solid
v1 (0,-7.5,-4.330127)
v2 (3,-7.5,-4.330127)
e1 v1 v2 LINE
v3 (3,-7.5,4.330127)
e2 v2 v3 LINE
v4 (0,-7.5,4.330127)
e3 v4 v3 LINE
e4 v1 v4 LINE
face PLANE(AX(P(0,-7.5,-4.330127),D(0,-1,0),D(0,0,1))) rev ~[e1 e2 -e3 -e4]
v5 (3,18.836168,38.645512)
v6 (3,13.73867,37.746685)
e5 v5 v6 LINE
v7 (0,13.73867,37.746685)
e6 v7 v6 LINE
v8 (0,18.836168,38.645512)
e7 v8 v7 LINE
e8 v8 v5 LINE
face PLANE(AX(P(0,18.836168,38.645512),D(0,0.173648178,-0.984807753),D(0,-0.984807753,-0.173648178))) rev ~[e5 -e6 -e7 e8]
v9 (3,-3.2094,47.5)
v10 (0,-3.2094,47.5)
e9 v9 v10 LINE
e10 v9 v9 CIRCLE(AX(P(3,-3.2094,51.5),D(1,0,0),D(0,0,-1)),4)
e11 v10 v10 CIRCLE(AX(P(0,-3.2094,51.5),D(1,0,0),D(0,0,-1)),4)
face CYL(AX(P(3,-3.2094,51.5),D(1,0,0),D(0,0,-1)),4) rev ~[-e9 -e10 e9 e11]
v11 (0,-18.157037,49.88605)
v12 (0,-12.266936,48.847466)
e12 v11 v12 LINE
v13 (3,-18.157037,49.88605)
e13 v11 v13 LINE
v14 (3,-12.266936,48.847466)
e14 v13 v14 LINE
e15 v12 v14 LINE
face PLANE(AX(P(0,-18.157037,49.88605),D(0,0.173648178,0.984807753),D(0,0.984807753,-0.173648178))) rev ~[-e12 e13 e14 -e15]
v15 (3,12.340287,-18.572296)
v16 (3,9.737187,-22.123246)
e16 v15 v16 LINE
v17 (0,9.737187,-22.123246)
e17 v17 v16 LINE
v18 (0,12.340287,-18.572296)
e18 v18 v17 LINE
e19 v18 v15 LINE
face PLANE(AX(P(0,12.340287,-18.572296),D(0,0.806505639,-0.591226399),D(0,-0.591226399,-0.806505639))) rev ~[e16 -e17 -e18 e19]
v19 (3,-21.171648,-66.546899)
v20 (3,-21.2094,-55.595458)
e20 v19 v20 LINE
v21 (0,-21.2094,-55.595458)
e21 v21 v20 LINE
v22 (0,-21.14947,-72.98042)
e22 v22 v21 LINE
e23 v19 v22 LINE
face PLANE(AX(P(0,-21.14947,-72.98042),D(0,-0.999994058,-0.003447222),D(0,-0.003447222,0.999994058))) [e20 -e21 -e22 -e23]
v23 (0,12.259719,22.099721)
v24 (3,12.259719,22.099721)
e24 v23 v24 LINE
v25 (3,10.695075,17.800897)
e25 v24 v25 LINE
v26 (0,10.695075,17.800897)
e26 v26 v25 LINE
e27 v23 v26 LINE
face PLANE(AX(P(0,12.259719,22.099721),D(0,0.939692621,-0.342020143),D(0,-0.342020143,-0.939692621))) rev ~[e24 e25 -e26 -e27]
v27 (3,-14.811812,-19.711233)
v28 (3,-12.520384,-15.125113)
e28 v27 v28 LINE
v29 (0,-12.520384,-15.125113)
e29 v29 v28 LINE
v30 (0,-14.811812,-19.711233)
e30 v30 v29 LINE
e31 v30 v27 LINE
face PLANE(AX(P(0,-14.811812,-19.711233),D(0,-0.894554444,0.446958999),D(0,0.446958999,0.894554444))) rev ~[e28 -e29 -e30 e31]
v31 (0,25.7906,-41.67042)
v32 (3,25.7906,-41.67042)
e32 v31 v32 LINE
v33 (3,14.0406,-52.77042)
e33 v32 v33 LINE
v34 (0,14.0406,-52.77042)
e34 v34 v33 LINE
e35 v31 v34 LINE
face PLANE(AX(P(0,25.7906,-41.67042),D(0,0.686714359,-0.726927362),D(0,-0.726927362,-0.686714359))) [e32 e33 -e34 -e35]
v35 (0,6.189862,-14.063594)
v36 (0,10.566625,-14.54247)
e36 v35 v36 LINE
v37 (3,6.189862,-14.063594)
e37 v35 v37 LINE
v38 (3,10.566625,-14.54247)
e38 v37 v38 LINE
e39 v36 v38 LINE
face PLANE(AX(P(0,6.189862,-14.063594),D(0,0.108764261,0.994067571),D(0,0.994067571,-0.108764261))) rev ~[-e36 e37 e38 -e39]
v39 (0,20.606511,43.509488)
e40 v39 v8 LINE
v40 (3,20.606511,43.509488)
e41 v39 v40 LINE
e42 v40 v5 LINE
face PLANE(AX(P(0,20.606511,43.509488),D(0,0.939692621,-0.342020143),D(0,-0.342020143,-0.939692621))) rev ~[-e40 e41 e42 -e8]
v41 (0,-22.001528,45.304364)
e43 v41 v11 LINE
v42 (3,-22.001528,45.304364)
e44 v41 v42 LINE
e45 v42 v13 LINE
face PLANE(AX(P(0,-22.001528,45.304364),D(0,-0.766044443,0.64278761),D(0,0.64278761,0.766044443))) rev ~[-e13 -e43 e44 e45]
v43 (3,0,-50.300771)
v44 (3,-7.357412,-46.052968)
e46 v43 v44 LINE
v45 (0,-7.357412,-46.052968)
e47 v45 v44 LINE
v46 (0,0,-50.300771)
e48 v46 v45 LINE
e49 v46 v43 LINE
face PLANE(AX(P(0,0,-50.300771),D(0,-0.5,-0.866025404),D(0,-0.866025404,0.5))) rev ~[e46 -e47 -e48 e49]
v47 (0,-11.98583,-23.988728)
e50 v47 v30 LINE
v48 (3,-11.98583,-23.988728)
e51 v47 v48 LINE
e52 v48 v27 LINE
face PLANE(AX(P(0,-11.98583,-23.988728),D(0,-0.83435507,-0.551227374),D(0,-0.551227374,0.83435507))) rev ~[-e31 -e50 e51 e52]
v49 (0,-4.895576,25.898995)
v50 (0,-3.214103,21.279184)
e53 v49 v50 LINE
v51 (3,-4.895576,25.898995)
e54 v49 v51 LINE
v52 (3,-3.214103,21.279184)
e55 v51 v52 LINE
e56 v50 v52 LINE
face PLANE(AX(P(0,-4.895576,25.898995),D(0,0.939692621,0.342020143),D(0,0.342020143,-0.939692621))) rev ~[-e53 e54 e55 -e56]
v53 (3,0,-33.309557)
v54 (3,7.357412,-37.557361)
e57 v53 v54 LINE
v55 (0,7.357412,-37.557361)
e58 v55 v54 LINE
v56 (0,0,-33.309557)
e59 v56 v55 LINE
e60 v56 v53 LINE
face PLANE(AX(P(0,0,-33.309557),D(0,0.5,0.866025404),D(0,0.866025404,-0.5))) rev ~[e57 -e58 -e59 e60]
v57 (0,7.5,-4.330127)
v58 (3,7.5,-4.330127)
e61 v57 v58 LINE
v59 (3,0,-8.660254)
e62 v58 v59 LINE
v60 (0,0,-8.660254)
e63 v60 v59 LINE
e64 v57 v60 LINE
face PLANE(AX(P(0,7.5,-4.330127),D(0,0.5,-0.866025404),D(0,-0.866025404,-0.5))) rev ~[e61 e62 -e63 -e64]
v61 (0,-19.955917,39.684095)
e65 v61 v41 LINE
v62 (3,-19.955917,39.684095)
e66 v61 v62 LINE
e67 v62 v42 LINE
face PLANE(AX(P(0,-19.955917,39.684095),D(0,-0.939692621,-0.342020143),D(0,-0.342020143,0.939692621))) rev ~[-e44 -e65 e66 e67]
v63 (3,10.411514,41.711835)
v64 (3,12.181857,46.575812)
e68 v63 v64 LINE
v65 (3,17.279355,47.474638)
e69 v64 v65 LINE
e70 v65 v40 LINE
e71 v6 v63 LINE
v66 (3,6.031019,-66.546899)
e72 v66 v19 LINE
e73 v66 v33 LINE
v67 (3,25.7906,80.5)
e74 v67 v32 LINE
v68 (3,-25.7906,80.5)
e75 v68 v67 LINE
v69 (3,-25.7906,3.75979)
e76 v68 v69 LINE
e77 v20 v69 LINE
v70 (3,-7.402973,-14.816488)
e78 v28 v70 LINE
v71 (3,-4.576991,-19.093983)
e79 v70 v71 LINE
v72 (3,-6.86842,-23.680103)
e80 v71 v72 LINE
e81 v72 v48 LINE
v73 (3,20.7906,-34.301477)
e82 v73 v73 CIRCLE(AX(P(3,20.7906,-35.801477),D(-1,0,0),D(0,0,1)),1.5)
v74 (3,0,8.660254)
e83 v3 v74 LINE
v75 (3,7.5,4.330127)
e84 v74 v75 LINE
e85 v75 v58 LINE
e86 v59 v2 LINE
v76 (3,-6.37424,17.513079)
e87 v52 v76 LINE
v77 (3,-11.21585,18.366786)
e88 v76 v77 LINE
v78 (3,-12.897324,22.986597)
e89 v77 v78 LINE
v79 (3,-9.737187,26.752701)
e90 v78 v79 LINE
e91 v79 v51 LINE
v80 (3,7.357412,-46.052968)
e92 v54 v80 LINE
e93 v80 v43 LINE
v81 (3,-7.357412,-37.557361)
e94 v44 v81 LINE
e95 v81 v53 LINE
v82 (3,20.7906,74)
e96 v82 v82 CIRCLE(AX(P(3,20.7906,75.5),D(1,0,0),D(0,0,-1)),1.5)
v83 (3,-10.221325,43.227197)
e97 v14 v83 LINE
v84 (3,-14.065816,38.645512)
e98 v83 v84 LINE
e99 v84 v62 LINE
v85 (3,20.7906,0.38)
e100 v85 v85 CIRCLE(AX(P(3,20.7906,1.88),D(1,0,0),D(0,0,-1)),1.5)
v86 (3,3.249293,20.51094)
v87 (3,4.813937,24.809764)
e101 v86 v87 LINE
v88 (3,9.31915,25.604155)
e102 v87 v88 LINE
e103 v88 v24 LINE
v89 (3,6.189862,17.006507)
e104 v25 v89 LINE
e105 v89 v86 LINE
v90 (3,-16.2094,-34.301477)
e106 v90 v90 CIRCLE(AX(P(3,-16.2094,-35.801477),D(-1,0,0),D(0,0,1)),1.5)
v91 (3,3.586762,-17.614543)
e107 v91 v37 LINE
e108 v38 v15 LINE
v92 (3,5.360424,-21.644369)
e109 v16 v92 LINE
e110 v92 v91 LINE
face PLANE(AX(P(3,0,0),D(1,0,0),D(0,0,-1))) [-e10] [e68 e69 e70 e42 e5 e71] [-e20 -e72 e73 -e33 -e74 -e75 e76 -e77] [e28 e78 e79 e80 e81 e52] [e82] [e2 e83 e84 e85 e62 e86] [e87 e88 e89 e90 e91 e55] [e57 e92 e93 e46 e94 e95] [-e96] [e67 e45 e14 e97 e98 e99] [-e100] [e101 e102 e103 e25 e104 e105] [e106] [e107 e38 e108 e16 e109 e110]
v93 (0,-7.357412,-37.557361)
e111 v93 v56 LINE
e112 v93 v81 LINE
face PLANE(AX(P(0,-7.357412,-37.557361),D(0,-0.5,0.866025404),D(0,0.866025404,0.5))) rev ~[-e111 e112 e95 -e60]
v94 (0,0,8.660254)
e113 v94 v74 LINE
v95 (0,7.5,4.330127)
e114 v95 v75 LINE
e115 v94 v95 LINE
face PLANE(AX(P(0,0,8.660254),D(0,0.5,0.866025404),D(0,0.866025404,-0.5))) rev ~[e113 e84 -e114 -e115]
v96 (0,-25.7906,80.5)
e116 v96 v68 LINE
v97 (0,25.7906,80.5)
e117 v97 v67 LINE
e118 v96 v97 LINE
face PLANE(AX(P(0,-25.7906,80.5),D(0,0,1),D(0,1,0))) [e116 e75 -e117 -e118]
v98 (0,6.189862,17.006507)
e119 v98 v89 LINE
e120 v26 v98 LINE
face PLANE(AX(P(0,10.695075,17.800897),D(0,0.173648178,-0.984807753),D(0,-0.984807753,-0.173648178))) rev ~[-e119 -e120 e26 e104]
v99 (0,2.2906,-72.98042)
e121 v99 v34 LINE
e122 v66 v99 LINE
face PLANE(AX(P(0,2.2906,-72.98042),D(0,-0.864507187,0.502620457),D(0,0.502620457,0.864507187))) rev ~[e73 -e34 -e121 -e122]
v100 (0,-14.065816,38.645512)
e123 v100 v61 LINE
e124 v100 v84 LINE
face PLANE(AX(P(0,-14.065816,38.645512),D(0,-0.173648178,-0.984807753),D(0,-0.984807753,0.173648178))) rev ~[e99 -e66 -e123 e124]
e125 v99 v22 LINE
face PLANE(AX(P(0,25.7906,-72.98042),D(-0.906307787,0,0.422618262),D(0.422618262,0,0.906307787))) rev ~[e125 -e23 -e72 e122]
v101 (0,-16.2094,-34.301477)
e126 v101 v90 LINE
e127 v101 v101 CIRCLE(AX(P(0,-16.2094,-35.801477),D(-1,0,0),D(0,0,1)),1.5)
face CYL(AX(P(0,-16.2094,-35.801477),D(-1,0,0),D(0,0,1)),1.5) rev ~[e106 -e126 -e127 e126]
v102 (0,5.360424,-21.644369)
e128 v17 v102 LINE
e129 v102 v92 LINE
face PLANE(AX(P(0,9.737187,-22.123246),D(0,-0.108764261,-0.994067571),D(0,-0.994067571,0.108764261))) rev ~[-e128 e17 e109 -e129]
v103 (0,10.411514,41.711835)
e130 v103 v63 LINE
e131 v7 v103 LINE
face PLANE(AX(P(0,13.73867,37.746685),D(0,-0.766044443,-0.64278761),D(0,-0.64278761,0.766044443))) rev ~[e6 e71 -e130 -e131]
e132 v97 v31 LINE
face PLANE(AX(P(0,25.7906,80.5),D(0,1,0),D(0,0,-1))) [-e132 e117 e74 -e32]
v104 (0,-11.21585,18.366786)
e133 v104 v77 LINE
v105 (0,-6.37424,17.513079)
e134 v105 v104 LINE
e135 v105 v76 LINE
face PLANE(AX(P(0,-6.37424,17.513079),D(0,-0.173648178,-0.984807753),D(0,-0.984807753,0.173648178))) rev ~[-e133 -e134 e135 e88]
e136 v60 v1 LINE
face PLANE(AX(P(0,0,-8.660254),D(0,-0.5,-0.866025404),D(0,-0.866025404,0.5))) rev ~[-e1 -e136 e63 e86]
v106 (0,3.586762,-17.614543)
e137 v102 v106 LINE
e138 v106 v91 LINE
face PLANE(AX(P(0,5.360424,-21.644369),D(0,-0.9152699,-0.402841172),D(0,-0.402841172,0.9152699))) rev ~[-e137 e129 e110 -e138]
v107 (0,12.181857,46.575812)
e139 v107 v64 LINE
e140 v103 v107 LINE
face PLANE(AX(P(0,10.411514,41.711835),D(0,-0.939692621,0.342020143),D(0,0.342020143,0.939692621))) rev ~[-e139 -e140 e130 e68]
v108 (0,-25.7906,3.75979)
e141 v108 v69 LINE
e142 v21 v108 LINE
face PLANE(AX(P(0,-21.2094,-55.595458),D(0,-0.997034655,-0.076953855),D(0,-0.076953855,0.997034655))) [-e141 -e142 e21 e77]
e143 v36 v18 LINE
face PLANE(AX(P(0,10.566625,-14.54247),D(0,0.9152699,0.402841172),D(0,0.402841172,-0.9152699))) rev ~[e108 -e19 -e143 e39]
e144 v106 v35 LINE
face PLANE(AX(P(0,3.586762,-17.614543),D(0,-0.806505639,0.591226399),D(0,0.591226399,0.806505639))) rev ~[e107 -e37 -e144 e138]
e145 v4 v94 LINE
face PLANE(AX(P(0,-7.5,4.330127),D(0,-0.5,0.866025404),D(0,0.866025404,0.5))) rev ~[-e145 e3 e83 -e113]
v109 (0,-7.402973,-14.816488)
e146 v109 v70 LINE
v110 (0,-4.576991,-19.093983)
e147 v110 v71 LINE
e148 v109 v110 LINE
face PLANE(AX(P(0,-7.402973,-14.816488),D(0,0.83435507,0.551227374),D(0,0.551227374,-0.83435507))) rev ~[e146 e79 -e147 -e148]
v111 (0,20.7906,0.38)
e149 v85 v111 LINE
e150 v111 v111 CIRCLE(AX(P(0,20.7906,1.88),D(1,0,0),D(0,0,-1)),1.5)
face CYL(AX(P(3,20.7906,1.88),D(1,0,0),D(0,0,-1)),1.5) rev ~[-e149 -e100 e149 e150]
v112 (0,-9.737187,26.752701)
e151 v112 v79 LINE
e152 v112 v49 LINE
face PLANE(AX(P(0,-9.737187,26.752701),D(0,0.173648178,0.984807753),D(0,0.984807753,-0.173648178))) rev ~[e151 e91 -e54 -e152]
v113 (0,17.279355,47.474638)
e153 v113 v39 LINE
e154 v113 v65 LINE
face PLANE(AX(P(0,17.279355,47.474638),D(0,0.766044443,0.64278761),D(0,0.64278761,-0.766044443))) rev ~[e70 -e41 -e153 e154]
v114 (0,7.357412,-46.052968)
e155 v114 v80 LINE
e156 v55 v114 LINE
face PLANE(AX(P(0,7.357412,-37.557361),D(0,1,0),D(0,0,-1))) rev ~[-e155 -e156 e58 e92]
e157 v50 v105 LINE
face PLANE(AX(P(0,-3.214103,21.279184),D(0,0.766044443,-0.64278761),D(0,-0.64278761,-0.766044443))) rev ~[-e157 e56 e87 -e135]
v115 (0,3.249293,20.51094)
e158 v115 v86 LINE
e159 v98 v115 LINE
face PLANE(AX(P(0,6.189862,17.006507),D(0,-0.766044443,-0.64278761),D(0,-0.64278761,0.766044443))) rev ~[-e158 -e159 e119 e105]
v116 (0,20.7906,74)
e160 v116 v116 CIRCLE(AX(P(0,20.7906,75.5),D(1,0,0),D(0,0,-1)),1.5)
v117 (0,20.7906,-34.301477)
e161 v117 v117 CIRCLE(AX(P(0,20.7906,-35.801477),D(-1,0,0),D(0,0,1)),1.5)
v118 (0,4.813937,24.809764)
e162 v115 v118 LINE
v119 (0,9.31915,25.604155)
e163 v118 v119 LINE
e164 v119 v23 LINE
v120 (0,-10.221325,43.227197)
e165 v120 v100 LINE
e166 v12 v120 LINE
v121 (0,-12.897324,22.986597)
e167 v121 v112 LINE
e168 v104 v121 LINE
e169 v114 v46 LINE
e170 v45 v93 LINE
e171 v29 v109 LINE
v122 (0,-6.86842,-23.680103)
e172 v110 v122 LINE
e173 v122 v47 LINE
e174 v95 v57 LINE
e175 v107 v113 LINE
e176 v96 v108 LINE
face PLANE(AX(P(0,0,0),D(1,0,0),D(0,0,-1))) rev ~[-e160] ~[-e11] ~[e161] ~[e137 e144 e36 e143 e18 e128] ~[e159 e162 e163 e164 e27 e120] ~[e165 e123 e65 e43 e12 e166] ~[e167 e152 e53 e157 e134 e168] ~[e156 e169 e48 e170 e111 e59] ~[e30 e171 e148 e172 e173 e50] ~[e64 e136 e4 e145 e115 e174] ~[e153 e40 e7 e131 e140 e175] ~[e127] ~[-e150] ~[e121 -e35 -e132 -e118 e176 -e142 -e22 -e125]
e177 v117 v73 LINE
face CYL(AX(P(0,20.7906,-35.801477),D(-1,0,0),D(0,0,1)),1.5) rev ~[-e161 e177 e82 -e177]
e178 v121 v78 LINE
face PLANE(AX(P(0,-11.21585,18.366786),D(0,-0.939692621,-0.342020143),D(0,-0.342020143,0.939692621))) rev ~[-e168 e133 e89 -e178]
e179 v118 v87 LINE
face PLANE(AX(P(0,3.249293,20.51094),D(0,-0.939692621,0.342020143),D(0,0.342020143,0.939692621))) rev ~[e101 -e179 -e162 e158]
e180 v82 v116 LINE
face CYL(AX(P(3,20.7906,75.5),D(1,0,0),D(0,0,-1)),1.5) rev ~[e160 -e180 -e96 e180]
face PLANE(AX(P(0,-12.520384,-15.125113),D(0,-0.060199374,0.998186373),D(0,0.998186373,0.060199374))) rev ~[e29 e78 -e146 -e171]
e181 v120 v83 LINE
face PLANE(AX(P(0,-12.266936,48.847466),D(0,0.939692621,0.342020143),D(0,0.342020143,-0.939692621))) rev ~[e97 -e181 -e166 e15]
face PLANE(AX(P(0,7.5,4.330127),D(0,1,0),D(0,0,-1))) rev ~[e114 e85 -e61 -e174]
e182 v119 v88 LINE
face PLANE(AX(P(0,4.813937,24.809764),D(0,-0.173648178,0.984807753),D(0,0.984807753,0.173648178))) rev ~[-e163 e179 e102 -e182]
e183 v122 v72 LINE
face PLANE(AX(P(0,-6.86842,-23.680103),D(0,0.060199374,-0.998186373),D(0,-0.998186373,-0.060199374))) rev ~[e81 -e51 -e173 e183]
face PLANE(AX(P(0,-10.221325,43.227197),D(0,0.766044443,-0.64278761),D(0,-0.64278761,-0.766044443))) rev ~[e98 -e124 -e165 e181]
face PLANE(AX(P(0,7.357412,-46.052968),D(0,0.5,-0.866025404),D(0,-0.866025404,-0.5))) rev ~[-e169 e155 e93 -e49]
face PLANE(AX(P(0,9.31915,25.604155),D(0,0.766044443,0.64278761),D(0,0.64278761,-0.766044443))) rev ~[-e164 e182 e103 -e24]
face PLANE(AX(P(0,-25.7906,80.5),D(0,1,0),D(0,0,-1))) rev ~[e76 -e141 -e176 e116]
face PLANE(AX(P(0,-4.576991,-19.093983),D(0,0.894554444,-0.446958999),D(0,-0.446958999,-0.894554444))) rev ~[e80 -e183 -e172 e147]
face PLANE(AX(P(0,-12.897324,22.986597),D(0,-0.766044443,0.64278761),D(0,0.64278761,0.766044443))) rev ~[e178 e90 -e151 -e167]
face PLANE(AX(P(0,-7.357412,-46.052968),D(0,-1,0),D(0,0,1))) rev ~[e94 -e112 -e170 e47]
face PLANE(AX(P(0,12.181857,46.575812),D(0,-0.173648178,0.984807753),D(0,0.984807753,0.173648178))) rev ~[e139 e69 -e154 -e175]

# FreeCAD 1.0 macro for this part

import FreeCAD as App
import Part
import Sketcher
from FreeCAD import Vector
Q = App.Units.Quantity

doc = App.newDocument("Part")
body = doc.addObject("PartDesign::Body", "Body")

# Sketch on YZ plane
sketch1 = body.newObject("Sketcher::SketchObject", "Sketch")
sketch1.AttachmentSupport = (doc.getObject("YZ_Plane"), [""])
sketch1.MapMode = "FlatFace"
sketch1.addGeometry([
    Part.LineSegment(Vector(26, 80, 0), Vector(-26, 80, 0)),
    Part.LineSegment(Vector(-26, 80, 0), Vector(-26, -80, 0)),
    Part.LineSegment(Vector(-26, -80, 0), Vector(26, -80, 0)),
    Part.LineSegment(Vector(26, -80, 0), Vector(26, 80, 0)),
], False)
sketch1.addConstraint([
    Sketcher.Constraint("Coincident", 0, 2, 1, 1),
    Sketcher.Constraint("Coincident", 1, 2, 2, 1),
    Sketcher.Constraint("Coincident", 2, 2, 3, 1),
    Sketcher.Constraint("Coincident", 3, 2, 0, 1),
    Sketcher.Constraint("Horizontal", 0),
    Sketcher.Constraint("Vertical", 1),
    Sketcher.Constraint("Horizontal", 2),
    Sketcher.Constraint("Vertical", 3),
    Sketcher.Constraint("Symmetric", 0, 2, 2, 2, -1, 1),
    Sketcher.Constraint("DistanceY", 1, 2, 1, 1, 161.0),
    Sketcher.Constraint("DistanceX", 0, 2, 0, 1, 51.5812),
])
pad1 = body.newObject("PartDesign::Pad", "Pad")
pad1.Profile = sketch1
pad1.Length = 3

# Sketch on YZ plane
sketch2 = body.newObject("Sketcher::SketchObject", "Sketch001")
sketch2.AttachmentSupport = (doc.getObject("YZ_Plane"), [""])
sketch2.MapMode = "FlatFace"
sketch2.AttachmentOffset = App.Placement(Vector(0, 0, 3), App.Rotation())
sketch2.addGeometry(Part.Circle(Vector(20.8, 75.5, 0), Vector(0, 0, 1), 1.5), False)
sketch2.addConstraint([
    Sketcher.Constraint("Diameter", 0, 3.0),
    Sketcher.Constraint("DistanceY", -1, 1, 0, 3, 75.5),
    Sketcher.Constraint("DistanceX", -1, 1, 0, 3, 20.7906),
])
pocket1 = body.newObject("PartDesign::Pocket", "Pocket")
pocket1.Profile = sketch2
pocket1.Type = "UpToFirst"

# Sketch on YZ plane
sketch3 = body.newObject("Sketcher::SketchObject", "Sketch002")
sketch3.AttachmentSupport = (doc.getObject("YZ_Plane"), [""])
sketch3.MapMode = "FlatFace"
sketch3.AttachmentOffset = App.Placement(Vector(0, 0, 3), App.Rotation())
sketch3.addGeometry(Part.Circle(Vector(20.8, 1.9, 0), Vector(0, 0, 1), 1.5), False)
sketch3.addConstraint([
    Sketcher.Constraint("Diameter", 0, 3.0),
    Sketcher.Constraint("DistanceY", -1, 1, 0, 3, 1.88),
    Sketcher.Constraint("DistanceX", -1, 1, 0, 3, 20.7906),
])
pocket2 = body.newObject("PartDesign::Pocket", "Pocket001")
pocket2.Profile = sketch3
pocket2.Type = "UpToFirst"

# Sketch on YZ plane
sketch4 = body.newObject("Sketcher::SketchObject", "Sketch003")
sketch4.AttachmentSupport = (doc.getObject("YZ_Plane"), [""])
sketch4.MapMode = "FlatFace"
sketch4.AttachmentOffset = App.Placement(Vector(0, 0, 3), App.Rotation())
sketch4.addGeometry(Part.Circle(Vector(-3.2, 51.5, 0), Vector(0, 0, 1), 4), False)
sketch4.addConstraint([
    Sketcher.Constraint("Diameter", 0, 8.0),
    Sketcher.Constraint("DistanceY", -1, 1, 0, 3, 51.5),
    Sketcher.Constraint("DistanceX", 0, 3, -1, 1, 3.2094),
])
pocket3 = body.newObject("PartDesign::Pocket", "Pocket002")
pocket3.Profile = sketch4
pocket3.Type = "UpToFirst"

# Sketch on YZ plane
sketch5 = body.newObject("Sketcher::SketchObject", "Sketch004")
sketch5.AttachmentSupport = (doc.getObject("YZ_Plane"), [""])
sketch5.MapMode = "FlatFace"
sketch5.addGeometry(Part.Circle(Vector(-16.2, -35.8, 0), Vector(0, 0, 1), 1.5), False)
sketch5.addConstraint([
    Sketcher.Constraint("Diameter", 0, 3.0),
    Sketcher.Constraint("DistanceX", 0, 3, -1, 1, 16.2094),
    Sketcher.Constraint("DistanceY", 0, 3, -1, 1, 35.801477),
])
pocket4 = body.newObject("PartDesign::Pocket", "Pocket003")
pocket4.Profile = sketch5
pocket4.Type = "UpToFirst"
pocket4.Reversed = True

# Sketch on XZ plane
sketch6 = body.newObject("Sketcher::SketchObject", "Sketch005")
sketch6.AttachmentSupport = (doc.getObject("XZ_Plane"), [""])
sketch6.MapMode = "FlatFace"
sketch6.AttachmentOffset = App.Placement(Vector(0, 0, -25.7906), App.Rotation())
sketch6.addGeometry([
    Part.LineSegment(Vector(3, -80.5, 0), Vector(0, -80.5, 0)),
    Part.LineSegment(Vector(0, -80.5, 0), Vector(0, -73, 0)),
    Part.LineSegment(Vector(0, -73, 0), Vector(3, -66.5, 0)),
    Part.LineSegment(Vector(3, -66.5, 0), Vector(3, -80.5, 0)),
], False)
sketch6.addConstraint([
    Sketcher.Constraint("Coincident", 0, 2, 1, 1),
    Sketcher.Constraint("Coincident", 1, 2, 2, 1),
    Sketcher.Constraint("Coincident", 2, 2, 3, 1),
    Sketcher.Constraint("Coincident", 3, 2, 0, 1),
    Sketcher.Constraint("Horizontal", 0),
    Sketcher.Constraint("Vertical", 1),
    Sketcher.Constraint("Vertical", 3),
    Sketcher.Constraint("PointOnObject", 0, 2, -2),
    Sketcher.Constraint("DistanceX", 0, 2, 0, 1, 3.0),
    Sketcher.Constraint("Angle", 2, Q("65 deg")),
    Sketcher.Constraint("DistanceY", 0, 2, -1, 1, 80.5),
    Sketcher.Constraint("DistanceY", 3, 2, 3, 1, 13.953101),
])
pocket5 = body.newObject("PartDesign::Pocket", "Pocket004")
pocket5.Profile = sketch6
pocket5.Type = "UpToFirst"
pocket5.Reversed = True

# Sketch on YZ plane
sketch7 = body.newObject("Sketcher::SketchObject", "Sketch006")
sketch7.AttachmentSupport = (doc.getObject("YZ_Plane"), [""])
sketch7.MapMode = "FlatFace"
sketch7.addGeometry([
    Part.LineSegment(Vector(-21.1, -73, 0), Vector(-25.8, -73, 0)),
    Part.LineSegment(Vector(-25.8, -73, 0), Vector(-25.8, 3.8, 0)),
    Part.LineSegment(Vector(-25.8, 3.8, 0), Vector(-21.2, -55.6, 0)),
    Part.LineSegment(Vector(-21.2, -55.6, 0), Vector(-21.1, -73, 0)),
], False)
sketch7.addConstraint([
    Sketcher.Constraint("Coincident", 0, 2, 1, 1),
    Sketcher.Constraint("Coincident", 1, 2, 2, 1),
    Sketcher.Constraint("Coincident", 2, 2, 3, 1),
    Sketcher.Constraint("Coincident", 3, 2, 0, 1),
    Sketcher.Constraint("Horizontal", 0),
    Sketcher.Constraint("Vertical", 1),
    Sketcher.Constraint("DistanceX", 0, 2, 0, 1, 4.64113),
    Sketcher.Constraint("DistanceY", 1, 1, 1, 2, 76.74021),
    Sketcher.Constraint("DistanceX", 0, 2, -1, 1, 25.7906),
    Sketcher.Constraint("DistanceX", 2, 2, -1, 1, 21.2094),
    Sketcher.Constraint("Distance", 2, 59.53178),
    Sketcher.Constraint("DistanceY", 0, 2, -1, 1, 72.98042),
])
pocket6 = body.newObject("PartDesign::Pocket", "Pocket005")
pocket6.Profile = sketch7
pocket6.Type = "UpToFirst"
pocket6.Reversed = True

# Sketch on YZ plane
sketch8 = body.newObject("Sketcher::SketchObject", "Sketch007")
sketch8.AttachmentSupport = (doc.getObject("YZ_Plane"), [""])
sketch8.MapMode = "FlatFace"
sketch8.addGeometry([
    Part.LineSegment(Vector(26, -73, 0), Vector(2, -73, 0)),
    Part.LineSegment(Vector(2, -73, 0), Vector(14, -53, 0)),
    Part.LineSegment(Vector(14, -53, 0), Vector(26, -53, 0)),
    Part.LineSegment(Vector(26, -53, 0), Vector(26, -73, 0)),
], False)
sketch8.addConstraint([
    Sketcher.Constraint("Coincident", 0, 2, 1, 1),
    Sketcher.Constraint("Coincident", 1, 2, 2, 1),
    Sketcher.Constraint("Coincident", 2, 2, 3, 1),
    Sketcher.Constraint("Coincident", 3, 2, 0, 1),
    Sketcher.Constraint("Horizontal", 0),
    Sketcher.Constraint("Horizontal", 2),
    Sketcher.Constraint("Vertical", 3),
    Sketcher.Constraint("DistanceX", 0, 2, 0, 1, 23.5),
    Sketcher.Constraint("DistanceX", 2, 1, 2, 2, 11.75),
    Sketcher.Constraint("DistanceY", 3, 2, 3, 1, 20.21),
    Sketcher.Constraint("DistanceX", -1, 1, 0, 2, 2.2906),
    Sketcher.Constraint("DistanceY", 0, 2, -1, 1, 72.98042),
])
pocket7 = body.newObject("PartDesign::Pocket", "Pocket006")
pocket7.Profile = sketch8
pocket7.Type = "UpToFirst"
pocket7.Reversed = True

# Sketch on YZ plane
sketch9 = body.newObject("Sketcher::SketchObject", "Sketch008")
sketch9.AttachmentSupport = (doc.getObject("YZ_Plane"), [""])
sketch9.MapMode = "FlatFace"
sketch9.addGeometry([
    Part.LineSegment(Vector(26, -42, 0), Vector(26, -53, 0)),
    Part.LineSegment(Vector(26, -53, 0), Vector(14, -53, 0)),
    Part.LineSegment(Vector(14, -53, 0), Vector(26, -42, 0)),
], False)
sketch9.addConstraint([
    Sketcher.Constraint("Coincident", 0, 2, 1, 1),
    Sketcher.Constraint("Coincident", 1, 2, 2, 1),
    Sketcher.Constraint("Coincident", 2, 2, 0, 1),
    Sketcher.Constraint("Vertical", 0),
    Sketcher.Constraint("Horizontal", 1),
    Sketcher.Constraint("DistanceY", 0, 2, 0, 1, 11.1),
    Sketcher.Constraint("DistanceX", 1, 2, 1, 1, 11.75),
    Sketcher.Constraint("DistanceX", -1, 1, 0, 2, 25.7906),
    Sketcher.Constraint("DistanceY", 0, 2, -1, 1, 52.77042),
])
pocket8 = body.newObject("PartDesign::Pocket", "Pocket007")
pocket8.Profile = sketch9
pocket8.Type = "UpToFirst"
pocket8.Reversed = True

# Sketch on YZ plane
sketch10 = body.newObject("Sketcher::SketchObject", "Sketch009")
sketch10.AttachmentSupport = (doc.getObject("YZ_Plane"), [""])
sketch10.MapMode = "FlatFace"
sketch10.addGeometry([
    Part.LineSegment(Vector(0, 9, 0), Vector(8, 4, 0)),  # 0
    Part.LineSegment(Vector(8, 4, 0), Vector(8, -4, 0)),  # 1
    Part.LineSegment(Vector(8, -4, 0), Vector(0, -9, 0)),  # 2
    Part.LineSegment(Vector(0, -9, 0), Vector(-8, -4, 0)),  # 3
    Part.LineSegment(Vector(-8, -4, 0), Vector(-8, 4, 0)),  # 4
    Part.LineSegment(Vector(-8, 4, 0), Vector(0, 9, 0)),  # 5
], False)
sketch10.addConstraint([
    Sketcher.Constraint("Coincident", 0, 2, 1, 1),
    Sketcher.Constraint("Coincident", 1, 2, 2, 1),
    Sketcher.Constraint("Coincident", 2, 2, 3, 1),
    Sketcher.Constraint("Coincident", 3, 2, 4, 1),
    Sketcher.Constraint("Coincident", 4, 2, 5, 1),
    Sketcher.Constraint("Coincident", 5, 2, 0, 1),
    Sketcher.Constraint("Vertical", 1),
    Sketcher.Constraint("Vertical", 4),
    Sketcher.Constraint("Symmetric", 0, 2, 3, 2, -1, 1),
    Sketcher.Constraint("Symmetric", 2, 2, 5, 2, -1, 1),
    Sketcher.Constraint("PointOnObject", 2, 2, -2),
    Sketcher.Constraint("Parallel", 2, 5),
    Sketcher.Constraint("Horizontal", 1, 2, 3, 2),
    Sketcher.Constraint("Angle", 0, Q("-30 deg")),
    Sketcher.Constraint("DistanceX", 3, 2, 1, 2, 15.0),
    Sketcher.Constraint("DistanceY", 1, 2, 1, 1, 8.660254),
])
pocket9 = body.newObject("PartDesign::Pocket", "Pocket008")
pocket9.Profile = sketch10
pocket9.Type = "UpToFirst"
pocket9.Reversed = True

# Sketch on YZ plane
sketch11 = body.newObject("Sketcher::SketchObject", "Sketch010")
sketch11.AttachmentSupport = (doc.getObject("YZ_Plane"), [""])
sketch11.MapMode = "FlatFace"
sketch11.addGeometry([
    Part.LineSegment(Vector(9.3, 25.6, 0), Vector(12.3, 22.1, 0)),  # 0
    Part.LineSegment(Vector(12.3, 22.1, 0), Vector(10.7, 17.8, 0)),  # 1
    Part.LineSegment(Vector(10.7, 17.8, 0), Vector(6.2, 17, 0)),  # 2
    Part.LineSegment(Vector(6.2, 17, 0), Vector(3.2, 20.5, 0)),  # 3
    Part.LineSegment(Vector(3.2, 20.5, 0), Vector(4.8, 24.8, 0)),  # 4
    Part.LineSegment(Vector(4.8, 24.8, 0), Vector(9.3, 25.6, 0)),  # 5
], False)
sketch11.addConstraint([
    Sketcher.Constraint("Coincident", 0, 2, 1, 1),
    Sketcher.Constraint("Coincident", 1, 2, 2, 1),
    Sketcher.Constraint("Coincident", 2, 2, 3, 1),
    Sketcher.Constraint("Coincident", 3, 2, 4, 1),
    Sketcher.Constraint("Coincident", 4, 2, 5, 1),
    Sketcher.Constraint("Coincident", 5, 2, 0, 1),
    Sketcher.Constraint("Parallel", 0, 3),
    Sketcher.Constraint("Parallel", 1, 4),
    Sketcher.Constraint("Parallel", 2, 5),
    Sketcher.Constraint("Equal", 0, 1),
    Sketcher.Constraint("Equal", 1, 2),
    Sketcher.Constraint("Equal", 2, 3),
    Sketcher.Constraint("Angle", 0, Q("-50 deg")),
    Sketcher.Constraint("Angle", 1, Q("-110 deg")),
    Sketcher.Constraint("Angle", 2, Q("-170 deg")),
    Sketcher.Constraint("DistanceX", -1, 1, 0, 2, 12.259719),
    Sketcher.Constraint("DistanceY", -1, 1, 0, 2, 22.099721),
    Sketcher.Constraint("DistanceY", -1, 1, 3, 2, 20.51094),
])
pocket10 = body.newObject("PartDesign::Pocket", "Pocket009")
pocket10.Profile = sketch11
pocket10.Type = "UpToFirst"
pocket10.Reversed = True

# Sketch on YZ plane
sketch12 = body.newObject("Sketcher::SketchObject", "Sketch011")
sketch12.AttachmentSupport = (doc.getObject("YZ_Plane"), [""])
sketch12.MapMode = "FlatFace"
sketch12.addGeometry([
    Part.LineSegment(Vector(-12, -24, 0), Vector(-15, -20, 0)),  # 0
    Part.LineSegment(Vector(-15, -20, 0), Vector(-13, -15, 0)),  # 1
    Part.LineSegment(Vector(-13, -15, 0), Vector(-7, -15, 0)),  # 2
    Part.LineSegment(Vector(-7, -15, 0), Vector(-5, -19, 0)),  # 3
    Part.LineSegment(Vector(-5, -19, 0), Vector(-7, -24, 0)),  # 4
    Part.LineSegment(Vector(-7, -24, 0), Vector(-12, -24, 0)),  # 5
], False)
sketch12.addConstraint([
    Sketcher.Constraint("Coincident", 0, 2, 1, 1),
    Sketcher.Constraint("Coincident", 1, 2, 2, 1),
    Sketcher.Constraint("Coincident", 2, 2, 3, 1),
    Sketcher.Constraint("Coincident", 3, 2, 4, 1),
    Sketcher.Constraint("Coincident", 4, 2, 5, 1),
    Sketcher.Constraint("Coincident", 5, 2, 0, 1),
    Sketcher.Constraint("Parallel", 0, 3),
    Sketcher.Constraint("Parallel", 1, 4),
    Sketcher.Constraint("Parallel", 2, 5),
    Sketcher.Constraint("Equal", 0, 1),
    Sketcher.Constraint("Equal", 1, 2),
    Sketcher.Constraint("Equal", 2, 3),
    Sketcher.Constraint("Distance", 0, 5.126708),
    Sketcher.Constraint("DistanceY", 2, 2, -1, 1, 14.816488),
    Sketcher.Constraint("DistanceX", 3, 2, -1, 1, 4.576991),
    Sketcher.Constraint("DistanceX", 4, 2, -1, 1, 6.86842),
    Sketcher.Constraint("DistanceX", 5, 2, -1, 1, 11.98583),
    Sketcher.Constraint("DistanceY", 3, 2, 1, 2, 3.96887),
])
pocket11 = body.newObject("PartDesign::Pocket", "Pocket010")
pocket11.Profile = sketch12
pocket11.Type = "UpToFirst"
pocket11.Reversed = True

# Sketch on YZ plane
sketch13 = body.newObject("Sketcher::SketchObject", "Sketch012")
sketch13.AttachmentSupport = (doc.getObject("YZ_Plane"), [""])
sketch13.MapMode = "FlatFace"
sketch13.addGeometry([
    Part.LineSegment(Vector(9.7, -22.1, 0), Vector(5.4, -21.6, 0)),  # 0
    Part.LineSegment(Vector(5.4, -21.6, 0), Vector(3.6, -17.6, 0)),  # 1
    Part.LineSegment(Vector(3.6, -17.6, 0), Vector(6.2, -14.1, 0)),  # 2
    Part.LineSegment(Vector(6.2, -14.1, 0), Vector(10.6, -14.5, 0)),  # 3
    Part.LineSegment(Vector(10.6, -14.5, 0), Vector(12.3, -18.6, 0)),  # 4
    Part.LineSegment(Vector(12.3, -18.6, 0), Vector(9.7, -22.1, 0)),  # 5
], False)
sketch13.addConstraint([
    Sketcher.Constraint("Coincident", 0, 2, 1, 1),
    Sketcher.Constraint("Coincident", 1, 2, 2, 1),
    Sketcher.Constraint("Coincident", 2, 2, 3, 1),
    Sketcher.Constraint("Coincident", 3, 2, 4, 1),
    Sketcher.Constraint("Coincident", 4, 2, 5, 1),
    Sketcher.Constraint("Coincident", 5, 2, 0, 1),
    Sketcher.Constraint("Parallel", 0, 3),
    Sketcher.Constraint("Parallel", 1, 4),
    Sketcher.Constraint("Parallel", 2, 5),
    Sketcher.Constraint("Equal", 0, 1),
    Sketcher.Constraint("Equal", 1, 2),
    Sketcher.Constraint("Equal", 2, 3),
    Sketcher.Constraint("DistanceX", 1, 2, 2, 2, 2.6031),
    Sketcher.Constraint("DistanceX", 0, 2, 3, 2, 5.206201),
    Sketcher.Constraint("DistanceY", 0, 2, 3, 2, 7.101899),
    Sketcher.Constraint("DistanceY", 0, 2, -1, 1, 21.644369),
    Sketcher.Constraint("DistanceX", -1, 1, 1, 2, 3.586762),
    Sketcher.Constraint("DistanceY", 1, 2, 2, 2, 3.55095),
])
pocket12 = body.newObject("PartDesign::Pocket", "Pocket011")
pocket12.Profile = sketch13
pocket12.Type = "UpToFirst"
pocket12.Reversed = True

# Sketch on YZ plane
sketch14 = body.newObject("Sketcher::SketchObject", "Sketch013")
sketch14.AttachmentSupport = (doc.getObject("YZ_Plane"), [""])
sketch14.MapMode = "FlatFace"
sketch14.addGeometry([
    Part.LineSegment(Vector(-9.7, 26.8, 0), Vector(-4.9, 25.9, 0)),  # 0
    Part.LineSegment(Vector(-4.9, 25.9, 0), Vector(-3.2, 21.3, 0)),  # 1
    Part.LineSegment(Vector(-3.2, 21.3, 0), Vector(-6.4, 17.5, 0)),  # 2
    Part.LineSegment(Vector(-6.4, 17.5, 0), Vector(-11.2, 18.4, 0)),  # 3
    Part.LineSegment(Vector(-11.2, 18.4, 0), Vector(-12.9, 23, 0)),  # 4
    Part.LineSegment(Vector(-12.9, 23, 0), Vector(-9.7, 26.8, 0)),  # 5
], False)
sketch14.addConstraint([
    Sketcher.Constraint("Coincident", 0, 2, 1, 1),
    Sketcher.Constraint("Coincident", 1, 2, 2, 1),
    Sketcher.Constraint("Coincident", 2, 2, 3, 1),
    Sketcher.Constraint("Coincident", 3, 2, 4, 1),
    Sketcher.Constraint("Coincident", 4, 2, 5, 1),
    Sketcher.Constraint("Coincident", 5, 2, 0, 1),
    Sketcher.Constraint("Parallel", 0, 3),
    Sketcher.Constraint("Parallel", 1, 4),
    Sketcher.Constraint("Parallel", 2, 5),
    Sketcher.Constraint("Equal", 0, 1),
    Sketcher.Constraint("Equal", 1, 2),
    Sketcher.Constraint("Equal", 2, 3),
    Sketcher.Constraint("Angle", 0, Q("-10 deg")),
    Sketcher.Constraint("Angle", 1, Q("-70 deg")),
    Sketcher.Constraint("Angle", 2, Q("-130 deg")),
    Sketcher.Constraint("Distance", 0, 4.9163),
    Sketcher.Constraint("DistanceY", -1, 1, 5, 2, 26.752701),
    Sketcher.Constraint("DistanceX", 2, 2, -1, 1, 6.37424),
])
pocket13 = body.newObject("PartDesign::Pocket", "Pocket012")
pocket13.Profile = sketch14
pocket13.Type = "UpToFirst"
pocket13.Reversed = True

# Sketch on YZ plane
sketch15 = body.newObject("Sketcher::SketchObject", "Sketch014")
sketch15.AttachmentSupport = (doc.getObject("YZ_Plane"), [""])
sketch15.MapMode = "FlatFace"
sketch15.addGeometry([
    Part.LineSegment(Vector(0, -50, 0), Vector(-7, -46, 0)),  # 0
    Part.LineSegment(Vector(-7, -46, 0), Vector(-7, -38, 0)),  # 1
    Part.LineSegment(Vector(-7, -38, 0), Vector(0, -33, 0)),  # 2
    Part.LineSegment(Vector(0, -33, 0), Vector(7, -38, 0)),  # 3
    Part.LineSegment(Vector(7, -38, 0), Vector(7, -46, 0)),  # 4
    Part.LineSegment(Vector(7, -46, 0), Vector(0, -50, 0)),  # 5
], False)
sketch15.addConstraint([
    Sketcher.Constraint("Coincident", 0, 2, 1, 1),
    Sketcher.Constraint("Coincident", 1, 2, 2, 1),
    Sketcher.Constraint("Coincident", 2, 2, 3, 1),
    Sketcher.Constraint("Coincident", 3, 2, 4, 1),
    Sketcher.Constraint("Coincident", 4, 2, 5, 1),
    Sketcher.Constraint("Coincident", 5, 2, 0, 1),
    Sketcher.Constraint("Vertical", 1),
    Sketcher.Constraint("Vertical", 4),
    Sketcher.Constraint("Symmetric", 1, 2, 3, 2, -2),
    Sketcher.Constraint("PointOnObject", 2, 2, -2),
    Sketcher.Constraint("PointOnObject", 5, 2, -2),
    Sketcher.Constraint("Parallel", 0, 3),
    Sketcher.Constraint("Parallel", 2, 5),
    Sketcher.Constraint("Angle", 0, Q("150 deg")),
    Sketcher.Constraint("DistanceY", 1, 1, 1, 2, 8.495607),
    Sketcher.Constraint("DistanceX", 0, 2, -1, 1, 7.357412),
    Sketcher.Constraint("DistanceY", 1, 2, -1, 1, 37.557361),
])
pocket14 = body.newObject("PartDesign::Pocket", "Pocket013")
pocket14.Profile = sketch15
pocket14.Type = "UpToFirst"
pocket14.Reversed = True

# Sketch on YZ plane
sketch16 = body.newObject("Sketcher::SketchObject", "Sketch015")
sketch16.AttachmentSupport = (doc.getObject("YZ_Plane"), [""])
sketch16.MapMode = "FlatFace"
sketch16.addGeometry([
    Part.LineSegment(Vector(14, 38, 0), Vector(10, 42, 0)),  # 0
    Part.LineSegment(Vector(10, 42, 0), Vector(12, 47, 0)),  # 1
    Part.LineSegment(Vector(12, 47, 0), Vector(17, 47, 0)),  # 2
    Part.LineSegment(Vector(17, 47, 0), Vector(21, 44, 0)),  # 3
    Part.LineSegment(Vector(21, 44, 0), Vector(19, 39, 0)),  # 4
    Part.LineSegment(Vector(19, 39, 0), Vector(14, 38, 0)),  # 5
], False)
sketch16.addConstraint([
    Sketcher.Constraint("Coincident", 0, 2, 1, 1),
    Sketcher.Constraint("Coincident", 1, 2, 2, 1),
    Sketcher.Constraint("Coincident", 2, 2, 3, 1),
    Sketcher.Constraint("Coincident", 3, 2, 4, 1),
    Sketcher.Constraint("Coincident", 4, 2, 5, 1),
    Sketcher.Constraint("Coincident", 5, 2, 0, 1),
    Sketcher.Constraint("Parallel", 0, 3),
    Sketcher.Constraint("Parallel", 1, 4),
    Sketcher.Constraint("Parallel", 2, 5),
    Sketcher.Constraint("Equal", 0, 1),
    Sketcher.Constraint("Equal", 1, 2),
    Sketcher.Constraint("Equal", 2, 3),
    Sketcher.Constraint("Angle", 0, Q("130 deg")),
    Sketcher.Constraint("Angle", 1, Q("70 deg")),
    Sketcher.Constraint("Angle", 2, Q("10 deg")),
    Sketcher.Constraint("DistanceX", 1, 2, 2, 2, 5.097499),
    Sketcher.Constraint("DistanceY", -1, 1, 1, 2, 46.575812),
    Sketcher.Constraint("DistanceX", -1, 1, 3, 2, 20.606511),
])
pocket15 = body.newObject("PartDesign::Pocket", "Pocket014")
pocket15.Profile = sketch16
pocket15.Type = "UpToFirst"
pocket15.Reversed = True

# Sketch on YZ plane
sketch17 = body.newObject("Sketcher::SketchObject", "Sketch016")
sketch17.AttachmentSupport = (doc.getObject("YZ_Plane"), [""])
sketch17.MapMode = "FlatFace"
sketch17.addGeometry([
    Part.LineSegment(Vector(-14, 39, 0), Vector(-20, 40, 0)),  # 0
    Part.LineSegment(Vector(-20, 40, 0), Vector(-22, 45, 0)),  # 1
    Part.LineSegment(Vector(-22, 45, 0), Vector(-18, 50, 0)),  # 2
    Part.LineSegment(Vector(-18, 50, 0), Vector(-12, 49, 0)),  # 3
    Part.LineSegment(Vector(-12, 49, 0), Vector(-10, 43, 0)),  # 4
    Part.LineSegment(Vector(-10, 43, 0), Vector(-14, 39, 0)),  # 5
], False)
sketch17.addConstraint([
    Sketcher.Constraint("Coincident", 0, 2, 1, 1),
    Sketcher.Constraint("Coincident", 1, 2, 2, 1),
    Sketcher.Constraint("Coincident", 2, 2, 3, 1),
    Sketcher.Constraint("Coincident", 3, 2, 4, 1),
    Sketcher.Constraint("Coincident", 4, 2, 5, 1),
    Sketcher.Constraint("Coincident", 5, 2, 0, 1),
    Sketcher.Constraint("Parallel", 0, 3),
    Sketcher.Constraint("Parallel", 1, 4),
    Sketcher.Constraint("Parallel", 2, 5),
    Sketcher.Constraint("Equal", 0, 1),
    Sketcher.Constraint("Equal", 1, 2),
    Sketcher.Constraint("Equal", 2, 3),
    Sketcher.Constraint("Angle", 0, Q("170 deg")),
    Sketcher.Constraint("Angle", 1, Q("110 deg")),
    Sketcher.Constraint("Angle", 2, Q("50 deg")),
    Sketcher.Constraint("DistanceX", 2, 2, 3, 2, 5.890101),
    Sketcher.Constraint("DistanceY", -1, 1, 2, 2, 49.88605),
    Sketcher.Constraint("DistanceX", 0, 2, -1, 1, 19.955917),
])
pocket16 = body.newObject("PartDesign::Pocket", "Pocket015")
pocket16.Profile = sketch17
pocket16.Type = "UpToFirst"
pocket16.Reversed = True

# Sketch on YZ plane
sketch18 = body.newObject("Sketcher::SketchObject", "Sketch017")
sketch18.AttachmentSupport = (doc.getObject("YZ_Plane"), [""])
sketch18.MapMode = "FlatFace"
sketch18.addGeometry(Part.Circle(Vector(20.8, -35.8, 0), Vector(0, 0, 1), 1.5), False)
sketch18.addConstraint([
    Sketcher.Constraint("Diameter", 0, 3.0),
    Sketcher.Constraint("DistanceX", -1, 1, 0, 3, 20.7906),
    Sketcher.Constraint("DistanceY", 0, 3, -1, 1, 35.801477),
])
pocket17 = body.newObject("PartDesign::Pocket", "Pocket016")
pocket17.Profile = sketch18
pocket17.Type = "UpToFirst"
pocket17.Reversed = True

doc.recompute()
